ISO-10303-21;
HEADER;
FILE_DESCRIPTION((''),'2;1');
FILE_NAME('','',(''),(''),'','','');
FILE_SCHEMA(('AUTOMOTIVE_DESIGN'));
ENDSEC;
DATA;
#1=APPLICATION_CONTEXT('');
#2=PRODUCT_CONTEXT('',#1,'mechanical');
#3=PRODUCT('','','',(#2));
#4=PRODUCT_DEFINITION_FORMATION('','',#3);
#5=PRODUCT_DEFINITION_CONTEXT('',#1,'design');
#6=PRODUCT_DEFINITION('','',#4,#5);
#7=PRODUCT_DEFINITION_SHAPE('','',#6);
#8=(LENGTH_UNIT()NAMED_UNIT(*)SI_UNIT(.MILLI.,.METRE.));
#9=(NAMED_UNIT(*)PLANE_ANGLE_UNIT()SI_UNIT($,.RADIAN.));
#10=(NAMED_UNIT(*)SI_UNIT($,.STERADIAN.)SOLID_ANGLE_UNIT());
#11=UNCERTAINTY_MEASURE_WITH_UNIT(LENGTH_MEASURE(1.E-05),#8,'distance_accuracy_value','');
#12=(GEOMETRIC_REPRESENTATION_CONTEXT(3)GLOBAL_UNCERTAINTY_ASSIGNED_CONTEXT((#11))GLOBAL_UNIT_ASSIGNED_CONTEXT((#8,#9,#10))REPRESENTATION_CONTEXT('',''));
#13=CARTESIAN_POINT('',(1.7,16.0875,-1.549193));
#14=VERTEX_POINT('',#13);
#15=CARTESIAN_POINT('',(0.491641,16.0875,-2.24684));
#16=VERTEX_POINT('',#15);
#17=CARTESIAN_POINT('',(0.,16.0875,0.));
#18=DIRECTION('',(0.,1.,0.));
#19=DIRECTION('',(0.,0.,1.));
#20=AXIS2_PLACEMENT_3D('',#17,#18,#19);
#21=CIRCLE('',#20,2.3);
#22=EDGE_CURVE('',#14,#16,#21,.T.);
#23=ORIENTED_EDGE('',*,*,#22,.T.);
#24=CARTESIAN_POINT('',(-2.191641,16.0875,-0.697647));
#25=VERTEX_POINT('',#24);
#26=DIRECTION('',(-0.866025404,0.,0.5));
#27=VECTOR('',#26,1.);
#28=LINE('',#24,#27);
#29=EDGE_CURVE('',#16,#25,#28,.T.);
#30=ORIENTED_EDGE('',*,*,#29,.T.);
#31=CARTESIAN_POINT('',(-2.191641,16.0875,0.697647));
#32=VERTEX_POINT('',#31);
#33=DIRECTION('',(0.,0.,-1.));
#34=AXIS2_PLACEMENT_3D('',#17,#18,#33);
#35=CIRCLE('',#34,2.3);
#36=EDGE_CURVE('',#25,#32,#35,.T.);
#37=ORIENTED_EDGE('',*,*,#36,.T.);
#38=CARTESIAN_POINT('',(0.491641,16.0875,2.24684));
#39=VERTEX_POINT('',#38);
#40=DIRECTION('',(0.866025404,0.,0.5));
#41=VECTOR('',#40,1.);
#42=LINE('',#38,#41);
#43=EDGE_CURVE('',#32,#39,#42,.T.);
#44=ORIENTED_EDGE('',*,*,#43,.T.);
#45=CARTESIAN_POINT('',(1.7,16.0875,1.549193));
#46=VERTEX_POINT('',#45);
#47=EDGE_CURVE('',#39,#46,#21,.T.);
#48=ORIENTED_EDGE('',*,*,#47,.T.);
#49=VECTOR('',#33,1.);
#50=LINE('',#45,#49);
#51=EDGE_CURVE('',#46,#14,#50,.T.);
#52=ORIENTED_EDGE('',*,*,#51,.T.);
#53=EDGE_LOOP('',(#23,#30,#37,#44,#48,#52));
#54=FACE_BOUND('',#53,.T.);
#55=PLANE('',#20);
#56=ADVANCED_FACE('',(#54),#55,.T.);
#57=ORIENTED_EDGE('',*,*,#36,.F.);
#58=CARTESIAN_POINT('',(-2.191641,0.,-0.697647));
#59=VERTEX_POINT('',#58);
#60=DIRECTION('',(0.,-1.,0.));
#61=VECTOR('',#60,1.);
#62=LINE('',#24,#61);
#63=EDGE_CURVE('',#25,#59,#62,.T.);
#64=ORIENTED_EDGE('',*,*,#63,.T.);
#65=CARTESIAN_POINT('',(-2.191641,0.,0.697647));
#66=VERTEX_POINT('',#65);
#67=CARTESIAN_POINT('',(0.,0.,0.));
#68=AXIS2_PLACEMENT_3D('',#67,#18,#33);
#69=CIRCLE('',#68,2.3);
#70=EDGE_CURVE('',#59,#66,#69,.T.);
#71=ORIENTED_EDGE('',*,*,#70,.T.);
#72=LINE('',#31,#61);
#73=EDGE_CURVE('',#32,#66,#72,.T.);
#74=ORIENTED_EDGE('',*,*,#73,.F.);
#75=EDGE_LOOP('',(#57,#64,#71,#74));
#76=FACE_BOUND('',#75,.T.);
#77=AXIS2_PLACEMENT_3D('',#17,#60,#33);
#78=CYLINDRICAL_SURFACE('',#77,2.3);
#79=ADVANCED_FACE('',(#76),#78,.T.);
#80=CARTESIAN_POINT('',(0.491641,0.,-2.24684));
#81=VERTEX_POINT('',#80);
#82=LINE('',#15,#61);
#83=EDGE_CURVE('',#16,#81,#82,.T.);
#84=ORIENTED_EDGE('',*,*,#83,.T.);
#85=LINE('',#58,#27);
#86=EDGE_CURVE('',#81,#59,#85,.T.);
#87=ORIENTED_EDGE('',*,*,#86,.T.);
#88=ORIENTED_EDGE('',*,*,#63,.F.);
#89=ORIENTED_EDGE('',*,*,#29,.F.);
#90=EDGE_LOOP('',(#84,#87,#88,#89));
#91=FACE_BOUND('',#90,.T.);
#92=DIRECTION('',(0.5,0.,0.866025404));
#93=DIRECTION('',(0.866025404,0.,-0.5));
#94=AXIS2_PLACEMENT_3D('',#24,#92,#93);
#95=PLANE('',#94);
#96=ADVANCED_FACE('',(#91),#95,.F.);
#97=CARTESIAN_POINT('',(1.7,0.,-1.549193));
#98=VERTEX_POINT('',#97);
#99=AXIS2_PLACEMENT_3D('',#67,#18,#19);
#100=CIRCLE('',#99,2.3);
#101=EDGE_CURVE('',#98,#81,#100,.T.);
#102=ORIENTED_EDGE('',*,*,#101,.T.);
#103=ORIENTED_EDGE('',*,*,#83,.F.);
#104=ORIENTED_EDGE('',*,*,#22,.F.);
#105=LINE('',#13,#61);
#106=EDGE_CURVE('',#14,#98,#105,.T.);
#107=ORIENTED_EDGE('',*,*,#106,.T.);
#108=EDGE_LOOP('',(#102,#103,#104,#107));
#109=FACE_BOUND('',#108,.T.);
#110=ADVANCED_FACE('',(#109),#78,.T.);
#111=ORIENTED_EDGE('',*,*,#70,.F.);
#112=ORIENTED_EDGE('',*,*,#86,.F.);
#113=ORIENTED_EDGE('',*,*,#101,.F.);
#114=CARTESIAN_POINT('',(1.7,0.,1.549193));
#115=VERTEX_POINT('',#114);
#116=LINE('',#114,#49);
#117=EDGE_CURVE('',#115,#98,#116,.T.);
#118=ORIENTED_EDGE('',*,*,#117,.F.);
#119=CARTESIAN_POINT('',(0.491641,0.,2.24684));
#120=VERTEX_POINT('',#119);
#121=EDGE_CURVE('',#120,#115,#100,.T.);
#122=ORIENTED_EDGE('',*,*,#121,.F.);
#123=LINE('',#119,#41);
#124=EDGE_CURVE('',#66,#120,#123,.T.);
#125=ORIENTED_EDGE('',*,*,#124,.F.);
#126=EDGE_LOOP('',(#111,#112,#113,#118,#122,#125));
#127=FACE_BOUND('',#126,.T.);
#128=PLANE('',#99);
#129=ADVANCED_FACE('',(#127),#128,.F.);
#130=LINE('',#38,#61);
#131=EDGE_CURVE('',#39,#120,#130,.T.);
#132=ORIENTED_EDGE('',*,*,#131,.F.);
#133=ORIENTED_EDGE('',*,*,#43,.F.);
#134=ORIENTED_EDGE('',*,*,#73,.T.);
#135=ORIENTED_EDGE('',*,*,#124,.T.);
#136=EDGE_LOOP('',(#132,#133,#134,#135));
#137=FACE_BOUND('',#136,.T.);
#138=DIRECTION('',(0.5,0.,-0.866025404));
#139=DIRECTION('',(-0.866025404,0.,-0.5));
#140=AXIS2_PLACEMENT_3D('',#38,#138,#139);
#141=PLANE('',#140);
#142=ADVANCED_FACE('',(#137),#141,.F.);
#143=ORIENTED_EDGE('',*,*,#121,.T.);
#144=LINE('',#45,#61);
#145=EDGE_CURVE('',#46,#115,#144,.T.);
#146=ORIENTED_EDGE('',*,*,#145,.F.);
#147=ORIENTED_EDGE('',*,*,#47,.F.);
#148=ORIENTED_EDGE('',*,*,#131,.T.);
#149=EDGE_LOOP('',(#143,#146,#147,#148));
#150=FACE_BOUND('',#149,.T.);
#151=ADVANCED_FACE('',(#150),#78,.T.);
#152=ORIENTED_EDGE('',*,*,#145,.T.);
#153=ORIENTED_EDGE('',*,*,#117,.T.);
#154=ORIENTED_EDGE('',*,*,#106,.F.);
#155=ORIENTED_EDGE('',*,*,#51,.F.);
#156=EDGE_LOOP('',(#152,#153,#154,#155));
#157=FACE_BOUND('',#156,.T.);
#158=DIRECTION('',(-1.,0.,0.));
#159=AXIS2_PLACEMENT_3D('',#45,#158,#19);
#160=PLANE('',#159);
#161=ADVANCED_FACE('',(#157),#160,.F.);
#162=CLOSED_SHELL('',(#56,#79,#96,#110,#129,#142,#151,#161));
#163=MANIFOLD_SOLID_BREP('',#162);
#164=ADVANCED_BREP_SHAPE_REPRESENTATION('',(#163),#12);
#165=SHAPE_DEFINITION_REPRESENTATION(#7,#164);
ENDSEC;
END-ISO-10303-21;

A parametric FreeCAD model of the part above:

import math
import FreeCAD as App
import Part
import Sketcher
from FreeCAD import Vector
Q = App.Units.Quantity

doc = App.newDocument("Part")
params = doc.addObject("Spreadsheet::Sheet", "Params")
for row, (alias, value) in enumerate([
    ("sketch1_radius", "2.3 mm"),
    ("pad1_length", "16.0875 mm"),
], start=1):
    params.set(f"A{row}", alias)
    params.set(f"B{row}", "=" + value)
    params.setAlias(f"B{row}", alias)

body = doc.addObject("PartDesign::Body", "Body")

sketch1 = body.newObject("Sketcher::SketchObject", "Sketch")
sketch1.AttachmentSupport = (doc.getObject("XZ_Plane"), [""])
sketch1.MapMode = "FlatFace"
sketch1.addGeometry([
    Part.LineSegment(Vector(-2.191641, 0.697647, 0), Vector(0.491641, 2.24684, 0)),
    Part.ArcOfCircle(Part.Circle(Vector(0, 0, 0), Vector(0, 0, 1), 2.3), math.radians(42.342605), math.radians(77.657395)),
    Part.LineSegment(Vector(1.7, 1.549193, 0), Vector(1.7, -1.549193, 0)),
    Part.ArcOfCircle(Part.Circle(Vector(0, 0, 0), Vector(0, 0, 1), 2.3), math.radians(-77.657395), math.radians(-42.342605)),
    Part.LineSegment(Vector(0.491641, -2.24684, 0), Vector(-2.191641, -0.697647, 0)),
    Part.ArcOfCircle(Part.Circle(Vector(0, 0, 0), Vector(0, 0, 1), 2.3), math.radians(162.342605), math.radians(197.657395)),
], False)
sketch1.addConstraint([
    Sketcher.Constraint("Coincident", 0, 2, 1, 2),
    Sketcher.Constraint("Coincident", 1, 1, 2, 1),
    Sketcher.Constraint("Coincident", 2, 2, 3, 2),
    Sketcher.Constraint("Coincident", 3, 1, 4, 1),
    Sketcher.Constraint("Coincident", 4, 2, 5, 2),
    Sketcher.Constraint("Coincident", 5, 1, 0, 1),
    Sketcher.Constraint("Vertical", 2),
    Sketcher.Constraint("Coincident", 1, 3, -1, 1),
    Sketcher.Constraint("Coincident", 3, 3, -1, 1),
    Sketcher.Constraint("Coincident", 5, 3, -1, 1),
    Sketcher.Constraint("Equal", 1, 3),
    Sketcher.Constraint("Equal", 3, 5),
    Sketcher.Constraint("Vertical", 0, 2, 3, 1),
    Sketcher.Constraint("Vertical", 4, 2, 5, 1),
    Sketcher.Constraint("Radius", 1, Q("2.3 mm")),
    Sketcher.Constraint("Angle", 0, Q("30 deg")),
    Sketcher.Constraint("DistanceX", -1, 1, 1, 1, Q("1.7 mm")),
    Sketcher.Constraint("DistanceX", -1, 1, 0, 2, Q("0.491641 mm")),
])
sketch1.setExpression("Constraints[14]", "Params.sketch1_radius")
pad1 = body.newObject("PartDesign::Pad", "Pad")
pad1.Profile = sketch1
pad1.setExpression("Length", "Params.pad1_length")
pad1.Reversed = True

doc.recompute()
